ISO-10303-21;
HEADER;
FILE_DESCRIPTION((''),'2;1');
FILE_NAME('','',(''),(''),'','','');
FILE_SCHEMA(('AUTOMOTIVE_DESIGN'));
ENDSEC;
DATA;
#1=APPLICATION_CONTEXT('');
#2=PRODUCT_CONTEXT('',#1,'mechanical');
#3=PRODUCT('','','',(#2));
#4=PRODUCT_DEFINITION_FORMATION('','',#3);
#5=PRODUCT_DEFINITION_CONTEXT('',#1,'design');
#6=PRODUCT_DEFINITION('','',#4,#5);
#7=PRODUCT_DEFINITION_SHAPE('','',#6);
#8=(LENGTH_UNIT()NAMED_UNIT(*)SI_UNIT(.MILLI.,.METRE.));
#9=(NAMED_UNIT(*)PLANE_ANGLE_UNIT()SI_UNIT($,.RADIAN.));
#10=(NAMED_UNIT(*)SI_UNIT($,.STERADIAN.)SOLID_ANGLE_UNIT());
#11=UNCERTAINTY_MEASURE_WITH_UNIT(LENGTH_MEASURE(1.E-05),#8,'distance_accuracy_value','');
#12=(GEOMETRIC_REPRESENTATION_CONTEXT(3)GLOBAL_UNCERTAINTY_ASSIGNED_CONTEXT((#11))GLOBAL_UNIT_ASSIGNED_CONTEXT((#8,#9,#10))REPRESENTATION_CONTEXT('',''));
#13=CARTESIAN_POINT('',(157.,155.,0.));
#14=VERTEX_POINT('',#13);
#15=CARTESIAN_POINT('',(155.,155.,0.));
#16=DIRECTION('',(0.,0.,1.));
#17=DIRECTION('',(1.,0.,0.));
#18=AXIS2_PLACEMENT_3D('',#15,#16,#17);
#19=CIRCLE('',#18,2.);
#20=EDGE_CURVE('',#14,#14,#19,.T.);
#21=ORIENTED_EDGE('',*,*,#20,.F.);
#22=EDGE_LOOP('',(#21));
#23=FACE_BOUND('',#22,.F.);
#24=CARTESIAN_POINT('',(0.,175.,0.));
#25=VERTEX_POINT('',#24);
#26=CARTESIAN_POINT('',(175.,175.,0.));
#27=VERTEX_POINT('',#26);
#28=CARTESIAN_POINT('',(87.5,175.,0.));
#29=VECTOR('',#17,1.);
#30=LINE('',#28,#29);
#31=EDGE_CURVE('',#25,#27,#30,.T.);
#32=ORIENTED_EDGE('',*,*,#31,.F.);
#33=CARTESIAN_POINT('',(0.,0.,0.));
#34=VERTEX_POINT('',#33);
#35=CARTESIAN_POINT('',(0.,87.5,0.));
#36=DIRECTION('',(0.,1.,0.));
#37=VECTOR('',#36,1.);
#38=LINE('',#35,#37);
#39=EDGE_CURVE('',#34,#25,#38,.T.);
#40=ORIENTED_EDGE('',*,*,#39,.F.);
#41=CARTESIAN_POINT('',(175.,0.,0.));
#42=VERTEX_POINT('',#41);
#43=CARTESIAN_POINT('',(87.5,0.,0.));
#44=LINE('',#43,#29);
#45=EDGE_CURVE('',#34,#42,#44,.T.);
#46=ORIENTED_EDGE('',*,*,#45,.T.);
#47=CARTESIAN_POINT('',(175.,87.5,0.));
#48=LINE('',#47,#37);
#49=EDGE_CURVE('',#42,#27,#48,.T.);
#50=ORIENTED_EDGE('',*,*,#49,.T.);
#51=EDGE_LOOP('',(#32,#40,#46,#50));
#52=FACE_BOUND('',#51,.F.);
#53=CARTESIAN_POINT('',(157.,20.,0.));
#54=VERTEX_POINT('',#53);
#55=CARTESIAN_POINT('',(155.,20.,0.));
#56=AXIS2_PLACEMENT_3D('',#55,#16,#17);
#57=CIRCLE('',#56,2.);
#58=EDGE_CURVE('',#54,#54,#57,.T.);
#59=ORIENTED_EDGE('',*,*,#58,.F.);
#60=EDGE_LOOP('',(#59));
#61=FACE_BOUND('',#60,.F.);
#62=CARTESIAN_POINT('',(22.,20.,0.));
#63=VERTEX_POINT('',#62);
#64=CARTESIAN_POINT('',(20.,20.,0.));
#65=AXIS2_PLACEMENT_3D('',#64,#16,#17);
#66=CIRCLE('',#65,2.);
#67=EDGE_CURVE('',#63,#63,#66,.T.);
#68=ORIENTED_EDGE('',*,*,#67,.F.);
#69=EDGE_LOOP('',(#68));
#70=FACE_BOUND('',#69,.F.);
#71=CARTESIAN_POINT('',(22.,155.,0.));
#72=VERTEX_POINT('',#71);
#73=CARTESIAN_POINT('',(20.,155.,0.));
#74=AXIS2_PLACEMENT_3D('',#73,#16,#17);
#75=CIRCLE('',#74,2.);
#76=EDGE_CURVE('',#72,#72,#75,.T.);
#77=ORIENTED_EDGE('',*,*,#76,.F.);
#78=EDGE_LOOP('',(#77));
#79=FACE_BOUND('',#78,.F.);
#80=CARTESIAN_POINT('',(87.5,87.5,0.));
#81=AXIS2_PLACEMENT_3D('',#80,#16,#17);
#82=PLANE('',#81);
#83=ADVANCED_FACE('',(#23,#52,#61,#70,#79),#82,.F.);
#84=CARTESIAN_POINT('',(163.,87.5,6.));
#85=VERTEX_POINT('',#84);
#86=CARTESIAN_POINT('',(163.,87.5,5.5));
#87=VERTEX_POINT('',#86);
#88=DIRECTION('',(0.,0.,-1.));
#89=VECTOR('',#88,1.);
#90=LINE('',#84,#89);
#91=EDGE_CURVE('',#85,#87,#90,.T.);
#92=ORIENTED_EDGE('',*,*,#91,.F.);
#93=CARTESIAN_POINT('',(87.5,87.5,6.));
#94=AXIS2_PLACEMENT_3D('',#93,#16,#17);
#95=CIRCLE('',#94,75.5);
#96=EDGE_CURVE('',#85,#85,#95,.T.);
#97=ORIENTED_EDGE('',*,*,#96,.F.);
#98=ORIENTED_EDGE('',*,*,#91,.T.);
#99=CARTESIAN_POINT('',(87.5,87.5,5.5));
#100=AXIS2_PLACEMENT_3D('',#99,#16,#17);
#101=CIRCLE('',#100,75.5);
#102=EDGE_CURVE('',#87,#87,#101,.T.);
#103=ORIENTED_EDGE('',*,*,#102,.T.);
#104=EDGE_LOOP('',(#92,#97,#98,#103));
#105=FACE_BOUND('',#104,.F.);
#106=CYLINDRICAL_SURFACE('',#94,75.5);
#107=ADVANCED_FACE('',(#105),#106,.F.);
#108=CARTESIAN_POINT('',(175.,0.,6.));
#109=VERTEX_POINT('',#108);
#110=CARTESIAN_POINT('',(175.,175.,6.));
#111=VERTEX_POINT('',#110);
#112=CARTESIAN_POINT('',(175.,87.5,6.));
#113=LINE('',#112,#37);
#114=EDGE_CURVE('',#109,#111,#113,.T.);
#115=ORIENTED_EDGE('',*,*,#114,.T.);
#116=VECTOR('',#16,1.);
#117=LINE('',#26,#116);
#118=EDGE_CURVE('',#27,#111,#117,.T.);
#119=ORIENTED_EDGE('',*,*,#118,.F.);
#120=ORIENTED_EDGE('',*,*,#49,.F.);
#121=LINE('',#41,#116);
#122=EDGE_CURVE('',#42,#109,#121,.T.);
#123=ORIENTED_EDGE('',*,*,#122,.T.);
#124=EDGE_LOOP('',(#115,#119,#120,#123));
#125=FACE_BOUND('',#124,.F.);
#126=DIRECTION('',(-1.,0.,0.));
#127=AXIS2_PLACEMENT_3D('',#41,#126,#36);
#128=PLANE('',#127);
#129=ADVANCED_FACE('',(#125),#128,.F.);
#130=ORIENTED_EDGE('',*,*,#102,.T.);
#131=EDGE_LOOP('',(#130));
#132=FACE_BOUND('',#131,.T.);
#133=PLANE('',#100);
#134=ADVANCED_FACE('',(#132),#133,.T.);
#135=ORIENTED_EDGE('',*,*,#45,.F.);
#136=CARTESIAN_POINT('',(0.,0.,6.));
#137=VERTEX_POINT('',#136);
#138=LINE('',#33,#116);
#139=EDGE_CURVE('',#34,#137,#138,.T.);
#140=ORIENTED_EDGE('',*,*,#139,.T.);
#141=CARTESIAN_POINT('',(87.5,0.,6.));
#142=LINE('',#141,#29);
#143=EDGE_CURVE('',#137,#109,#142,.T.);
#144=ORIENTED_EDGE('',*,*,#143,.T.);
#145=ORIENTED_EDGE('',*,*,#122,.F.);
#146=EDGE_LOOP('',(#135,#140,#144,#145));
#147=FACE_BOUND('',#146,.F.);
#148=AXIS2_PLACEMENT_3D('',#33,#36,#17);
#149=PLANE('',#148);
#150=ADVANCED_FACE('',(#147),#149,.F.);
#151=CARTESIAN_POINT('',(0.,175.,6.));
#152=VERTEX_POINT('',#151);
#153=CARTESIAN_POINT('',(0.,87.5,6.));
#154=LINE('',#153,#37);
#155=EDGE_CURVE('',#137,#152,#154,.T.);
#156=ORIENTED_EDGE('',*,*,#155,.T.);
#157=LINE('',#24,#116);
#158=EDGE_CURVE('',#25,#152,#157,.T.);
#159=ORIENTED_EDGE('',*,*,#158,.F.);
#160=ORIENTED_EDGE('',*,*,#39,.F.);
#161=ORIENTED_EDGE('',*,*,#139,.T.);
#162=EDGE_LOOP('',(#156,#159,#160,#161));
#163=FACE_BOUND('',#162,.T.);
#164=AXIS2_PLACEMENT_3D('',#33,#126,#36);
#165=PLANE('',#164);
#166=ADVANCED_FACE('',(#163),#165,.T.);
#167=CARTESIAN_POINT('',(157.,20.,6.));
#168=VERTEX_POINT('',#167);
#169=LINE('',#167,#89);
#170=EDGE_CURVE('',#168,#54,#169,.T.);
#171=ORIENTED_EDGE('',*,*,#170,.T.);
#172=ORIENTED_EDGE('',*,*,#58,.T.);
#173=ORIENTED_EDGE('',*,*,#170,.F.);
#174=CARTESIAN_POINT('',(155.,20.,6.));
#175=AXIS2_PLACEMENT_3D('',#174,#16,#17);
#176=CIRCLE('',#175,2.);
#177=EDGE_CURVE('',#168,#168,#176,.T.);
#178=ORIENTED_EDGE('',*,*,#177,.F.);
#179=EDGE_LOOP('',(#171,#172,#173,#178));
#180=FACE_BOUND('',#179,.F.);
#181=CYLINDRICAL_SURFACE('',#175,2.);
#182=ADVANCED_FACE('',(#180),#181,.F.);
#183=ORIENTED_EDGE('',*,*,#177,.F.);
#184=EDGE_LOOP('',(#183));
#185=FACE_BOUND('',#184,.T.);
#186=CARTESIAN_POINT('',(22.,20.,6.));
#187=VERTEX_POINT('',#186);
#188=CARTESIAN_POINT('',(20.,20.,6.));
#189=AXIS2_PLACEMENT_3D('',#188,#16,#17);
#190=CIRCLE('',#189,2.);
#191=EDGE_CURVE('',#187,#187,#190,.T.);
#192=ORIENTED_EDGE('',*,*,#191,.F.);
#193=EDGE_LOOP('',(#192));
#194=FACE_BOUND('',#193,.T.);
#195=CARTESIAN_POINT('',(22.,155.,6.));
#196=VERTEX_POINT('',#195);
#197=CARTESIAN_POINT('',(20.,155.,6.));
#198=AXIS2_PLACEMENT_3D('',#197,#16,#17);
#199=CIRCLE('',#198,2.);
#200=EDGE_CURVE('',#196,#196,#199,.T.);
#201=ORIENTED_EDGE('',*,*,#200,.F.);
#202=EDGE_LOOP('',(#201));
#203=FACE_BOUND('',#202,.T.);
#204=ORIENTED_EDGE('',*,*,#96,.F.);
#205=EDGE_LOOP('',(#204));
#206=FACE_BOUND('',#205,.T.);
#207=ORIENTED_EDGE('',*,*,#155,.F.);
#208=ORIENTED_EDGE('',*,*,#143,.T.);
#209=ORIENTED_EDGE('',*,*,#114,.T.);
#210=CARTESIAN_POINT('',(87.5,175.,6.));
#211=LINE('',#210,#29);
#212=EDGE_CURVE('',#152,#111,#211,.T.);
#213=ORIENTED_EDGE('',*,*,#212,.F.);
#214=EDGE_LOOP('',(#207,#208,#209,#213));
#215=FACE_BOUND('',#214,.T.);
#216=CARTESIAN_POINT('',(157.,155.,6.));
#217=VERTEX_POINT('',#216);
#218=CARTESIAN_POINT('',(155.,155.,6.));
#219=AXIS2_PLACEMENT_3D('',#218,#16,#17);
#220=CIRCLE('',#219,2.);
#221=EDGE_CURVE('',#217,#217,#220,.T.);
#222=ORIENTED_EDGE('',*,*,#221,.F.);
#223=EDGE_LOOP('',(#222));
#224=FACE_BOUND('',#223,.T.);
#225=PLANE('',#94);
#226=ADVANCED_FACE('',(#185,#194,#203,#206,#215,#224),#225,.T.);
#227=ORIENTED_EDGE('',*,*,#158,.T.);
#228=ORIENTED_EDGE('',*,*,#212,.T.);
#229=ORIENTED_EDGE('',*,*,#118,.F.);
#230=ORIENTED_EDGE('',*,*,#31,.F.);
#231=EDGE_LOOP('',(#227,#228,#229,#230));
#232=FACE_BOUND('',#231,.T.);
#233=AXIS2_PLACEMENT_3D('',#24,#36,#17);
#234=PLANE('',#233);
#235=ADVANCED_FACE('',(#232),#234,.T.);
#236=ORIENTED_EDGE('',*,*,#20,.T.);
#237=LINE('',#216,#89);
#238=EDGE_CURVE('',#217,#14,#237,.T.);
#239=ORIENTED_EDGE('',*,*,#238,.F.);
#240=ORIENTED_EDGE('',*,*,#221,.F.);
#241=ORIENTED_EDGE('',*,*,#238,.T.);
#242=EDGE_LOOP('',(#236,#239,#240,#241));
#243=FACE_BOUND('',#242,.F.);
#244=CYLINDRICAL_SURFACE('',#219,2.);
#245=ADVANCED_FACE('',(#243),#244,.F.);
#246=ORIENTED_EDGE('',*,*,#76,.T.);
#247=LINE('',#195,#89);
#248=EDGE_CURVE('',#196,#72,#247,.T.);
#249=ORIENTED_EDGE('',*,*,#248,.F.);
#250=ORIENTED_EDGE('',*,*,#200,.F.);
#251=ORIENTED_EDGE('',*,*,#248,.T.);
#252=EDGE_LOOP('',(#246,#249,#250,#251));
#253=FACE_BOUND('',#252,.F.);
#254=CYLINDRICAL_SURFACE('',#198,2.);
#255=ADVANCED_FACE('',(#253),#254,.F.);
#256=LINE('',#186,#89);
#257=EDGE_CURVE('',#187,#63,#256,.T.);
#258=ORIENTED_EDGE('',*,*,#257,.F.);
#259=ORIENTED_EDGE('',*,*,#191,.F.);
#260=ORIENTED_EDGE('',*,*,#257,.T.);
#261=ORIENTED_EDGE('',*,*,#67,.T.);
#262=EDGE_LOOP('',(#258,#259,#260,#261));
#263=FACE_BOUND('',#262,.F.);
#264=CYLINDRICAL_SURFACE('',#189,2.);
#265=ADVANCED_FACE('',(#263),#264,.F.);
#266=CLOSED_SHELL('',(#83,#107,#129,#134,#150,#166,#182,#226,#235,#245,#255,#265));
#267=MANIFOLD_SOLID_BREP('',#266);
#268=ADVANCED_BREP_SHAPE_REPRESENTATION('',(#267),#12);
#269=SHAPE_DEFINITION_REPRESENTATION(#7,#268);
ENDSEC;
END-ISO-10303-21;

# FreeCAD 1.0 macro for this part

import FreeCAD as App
import Part
import Sketcher
from FreeCAD import Vector
Q = App.Units.Quantity


def add_polygon(sketch, points):
    """Adds a closed chain of lines whose ends are joined by coincident constraints."""
    first, n = sketch.GeometryCount, len(points)
    for a, b in zip(points, points[1:] + points[:1]):
        sketch.addGeometry(Part.LineSegment(App.Vector(*a, 0), App.Vector(*b, 0)), False)
    for i in range(n):
        sketch.addConstraint(Sketcher.Constraint("Coincident", first + i, 2, first + (i + 1) % n, 1))

doc = App.newDocument("Part")
body = doc.addObject("PartDesign::Body", "Body")

sketch1 = doc.addObject("Sketcher::SketchObject", "Sketch")
body.addObject(sketch1)
sketch1.AttachmentSupport = (doc.XY_Plane, [""])
sketch1.MapMode = "FlatFace"
add_polygon(sketch1, [(0, 175), (0, 0), (175, 0), (175, 175)])
sketch1.addConstraint([
    Sketcher.Constraint("Vertical", 0),
    Sketcher.Constraint("Horizontal", 1),
    Sketcher.Constraint("Vertical", 2),
    Sketcher.Constraint("Horizontal", 3),
    Sketcher.Constraint("Coincident", 0, 2, -1, 1),
    Sketcher.Constraint("Equal", 3, 0),
    Sketcher.Constraint("DistanceX", 1, 1, 1, 2, Q("175 mm")),
])
pad1 = doc.addObject("PartDesign::Pad", "Pad")
body.addObject(pad1)
pad1.Profile = sketch1
pad1.Length = 6

sketch2 = doc.addObject("Sketcher::SketchObject", "Sketch001")
body.addObject(sketch2)
sketch2.AttachmentSupport = (doc.XY_Plane, [""])
sketch2.MapMode = "FlatFace"
sketch2.AttachmentOffset = App.Placement(Vector(0, 0, 6), App.Rotation())
sketch2.addGeometry(Part.Circle(Vector(88, 88, 0), Vector(0, 0, 1), 76), False)
sketch2.addConstraint([
    Sketcher.Constraint("Diameter", 0, Q("151 mm")),
    Sketcher.Constraint("DistanceX", -1, 1, 0, 3, Q("87.5 mm")),
    Sketcher.Constraint("DistanceY", -1, 1, 0, 3, Q("87.5 mm")),
])
pocket1 = doc.addObject("PartDesign::Pocket", "Pocket")
body.addObject(pocket1)
pocket1.Profile = sketch2
pocket1.Length = 0.5

sketch3 = doc.addObject("Sketcher::SketchObject", "Sketch002")
body.addObject(sketch3)
sketch3.AttachmentSupport = (doc.XY_Plane, [""])
sketch3.MapMode = "FlatFace"
sketch3.AttachmentOffset = App.Placement(Vector(0, 0, 6), App.Rotation())
sketch3.addGeometry([
    Part.Circle(Vector(20, 155, 0), Vector(0, 0, 1), 2),
    Part.Circle(Vector(155, 155, 0), Vector(0, 0, 1), 2),
    Part.Circle(Vector(155, 20, 0), Vector(0, 0, 1), 2),
    Part.Circle(Vector(20, 20, 0), Vector(0, 0, 1), 2),
], False)
sketch3.addConstraint([
    Sketcher.Constraint("Equal", 0, 1),
    Sketcher.Constraint("Equal", 1, 2),
    Sketcher.Constraint("Equal", 2, 3),
    Sketcher.Constraint("Horizontal", 0, 3, 1, 3),
    Sketcher.Constraint("Horizontal", 2, 3, 3, 3),
    Sketcher.Constraint("Vertical", 1, 3, 2, 3),
    Sketcher.Constraint("Vertical", 0, 3, 3, 3),
    Sketcher.Constraint("Diameter", 0, Q("4 mm")),
    Sketcher.Constraint("DistanceX", -1, 1, 0, 3, Q("20 mm")),
    Sketcher.Constraint("DistanceY", -1, 1, 0, 3, Q("155 mm")),
    Sketcher.Constraint("DistanceX", -1, 1, 1, 3, Q("155 mm")),
    Sketcher.Constraint("DistanceY", -1, 1, 2, 3, Q("20 mm")),
])
pocket2 = doc.addObject("PartDesign::Pocket", "Pocket001")
body.addObject(pocket2)
pocket2.Profile = sketch3
pocket2.Type = "ThroughAll"

doc.recompute()
